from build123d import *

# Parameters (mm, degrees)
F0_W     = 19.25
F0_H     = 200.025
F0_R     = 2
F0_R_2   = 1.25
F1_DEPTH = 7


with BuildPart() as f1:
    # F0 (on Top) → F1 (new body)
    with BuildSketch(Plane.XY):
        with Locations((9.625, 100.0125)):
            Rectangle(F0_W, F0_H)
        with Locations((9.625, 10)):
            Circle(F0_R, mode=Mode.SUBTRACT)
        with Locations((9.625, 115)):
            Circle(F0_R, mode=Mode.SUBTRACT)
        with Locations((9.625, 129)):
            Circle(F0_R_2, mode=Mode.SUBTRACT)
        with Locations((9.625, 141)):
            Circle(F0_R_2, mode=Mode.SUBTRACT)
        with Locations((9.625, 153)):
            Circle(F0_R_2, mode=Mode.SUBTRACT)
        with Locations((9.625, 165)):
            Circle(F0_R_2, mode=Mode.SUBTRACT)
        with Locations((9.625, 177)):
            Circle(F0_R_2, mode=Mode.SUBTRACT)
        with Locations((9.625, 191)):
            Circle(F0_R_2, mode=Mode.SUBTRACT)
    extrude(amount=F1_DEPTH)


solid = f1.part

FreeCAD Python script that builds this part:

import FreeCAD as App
import Part
import Sketcher
from FreeCAD import Vector

doc = App.newDocument("Part")
params = doc.addObject("Spreadsheet::Sheet", "Params")
for row, (alias, value) in enumerate([
    ("sketch1_diameter", "4 mm"),
    ("sketch1_diameter2", "2.5 mm"),
    ("sketch1_width", "19.25 mm"),
    ("pad1_length", "7 mm"),
], start=1):
    params.set(f"A{row}", alias)
    params.set(f"B{row}", "=" + value)
    params.setAlias(f"B{row}", alias)

body = doc.addObject("PartDesign::Body", "Body")

# Sketch on XY plane
sketch1 = body.newObject("Sketcher::SketchObject", "Sketch")
sketch1.AttachmentSupport = (doc.getObject("XY_Plane"), [""])
sketch1.MapMode = "FlatFace"
sketch1.addGeometry(Part.LineSegment(Vector(0, 200, 0), Vector(0, 0, 0)), False)
sketch1.addGeometry(Part.LineSegment(Vector(0, 0, 0), Vector(19.2, 0, 0)), False)
sketch1.addGeometry(Part.LineSegment(Vector(19.2, 0, 0), Vector(19.2, 200, 0)), False)
sketch1.addGeometry(Part.LineSegment(Vector(19.2, 200, 0), Vector(0, 200, 0)), False)
sketch1.addGeometry(Part.Circle(Vector(9.6, 10, 0), Vector(0, 0, 1), 2), False)
sketch1.addGeometry(Part.Circle(Vector(9.6, 115, 0), Vector(0, 0, 1), 2), False)
sketch1.addGeometry(Part.Circle(Vector(9.6, 129, 0), Vector(0, 0, 1), 1.2), False)
sketch1.addGeometry(Part.Circle(Vector(9.6, 141, 0), Vector(0, 0, 1), 1.2), False)
sketch1.addGeometry(Part.Circle(Vector(9.6, 153, 0), Vector(0, 0, 1), 1.2), False)
sketch1.addGeometry(Part.Circle(Vector(9.6, 165, 0), Vector(0, 0, 1), 1.2), False)
sketch1.addGeometry(Part.Circle(Vector(9.6, 177, 0), Vector(0, 0, 1), 1.2), False)
sketch1.addGeometry(Part.Circle(Vector(9.6, 191, 0), Vector(0, 0, 1), 1.2), False)
sketch1.addConstraint(Sketcher.Constraint("Coincident", 0, 2, 1, 1))
sketch1.addConstraint(Sketcher.Constraint("Coincident", 1, 2, 2, 1))
sketch1.addConstraint(Sketcher.Constraint("Coincident", 2, 2, 3, 1))
sketch1.addConstraint(Sketcher.Constraint("Coincident", 3, 2, 0, 1))
sketch1.addConstraint(Sketcher.Constraint("Vertical", 0))
sketch1.addConstraint(Sketcher.Constraint("Horizontal", 1))
sketch1.addConstraint(Sketcher.Constraint("Vertical", 2))
sketch1.addConstraint(Sketcher.Constraint("Horizontal", 3))
sketch1.addConstraint(Sketcher.Constraint("Coincident", 0, 2, -1, 1))
sketch1.addConstraint(Sketcher.Constraint("Equal", 4, 5))
sketch1.addConstraint(Sketcher.Constraint("Equal", 6, 7))
sketch1.addConstraint(Sketcher.Constraint("Equal", 7, 8))
sketch1.addConstraint(Sketcher.Constraint("Equal", 8, 9))
sketch1.addConstraint(Sketcher.Constraint("Equal", 9, 10))
sketch1.addConstraint(Sketcher.Constraint("Equal", 10, 11))
sketch1.addConstraint(Sketcher.Constraint("Vertical", 4, 3, 5, 3))
sketch1.addConstraint(Sketcher.Constraint("Vertical", 5, 3, 6, 3))
sketch1.addConstraint(Sketcher.Constraint("Vertical", 6, 3, 7, 3))
sketch1.addConstraint(Sketcher.Constraint("Vertical", 7, 3, 8, 3))
sketch1.addConstraint(Sketcher.Constraint("Vertical", 8, 3, 9, 3))
sketch1.addConstraint(Sketcher.Constraint("Vertical", 9, 3, 10, 3))
sketch1.addConstraint(Sketcher.Constraint("Vertical", 10, 3, 11, 3))
sketch1.addConstraint(Sketcher.Constraint("Diameter", 4, 4.0))
sketch1.addConstraint(Sketcher.Constraint("Diameter", 6, 2.5))
sketch1.addConstraint(Sketcher.Constraint("DistanceY", -1, 1, 4, 3, 10.0))
sketch1.addConstraint(Sketcher.Constraint("DistanceY", -1, 1, 5, 3, 115.0))
sketch1.addConstraint(Sketcher.Constraint("DistanceY", -1, 1, 6, 3, 129.0))
sketch1.addConstraint(Sketcher.Constraint("DistanceY", -1, 1, 7, 3, 141.0))
sketch1.addConstraint(Sketcher.Constraint("DistanceY", -1, 1, 8, 3, 153.0))
sketch1.addConstraint(Sketcher.Constraint("DistanceY", -1, 1, 9, 3, 165.0))
sketch1.addConstraint(Sketcher.Constraint("DistanceY", -1, 1, 10, 3, 177.0))
sketch1.addConstraint(Sketcher.Constraint("DistanceY", -1, 1, 11, 3, 191.0))
sketch1.addConstraint(Sketcher.Constraint("DistanceX", 1, 1, 1, 2, 19.25))
sketch1.addConstraint(Sketcher.Constraint("DistanceY", 0, 2, 0, 1, 200.025))
sketch1.addConstraint(Sketcher.Constraint("DistanceX", -1, 1, 4, 3, 9.625))
sketch1.setExpression("Constraints[22]", "Params.sketch1_diameter")
sketch1.setExpression("Constraints[23]", "Params.sketch1_diameter2")
sketch1.setExpression("Constraints[32]", "Params.sketch1_width")
pad1 = body.newObject("PartDesign::Pad", "Pad")
pad1.Profile = sketch1
pad1.setExpression("Length", "Params.pad1_length")

doc.recompute()
